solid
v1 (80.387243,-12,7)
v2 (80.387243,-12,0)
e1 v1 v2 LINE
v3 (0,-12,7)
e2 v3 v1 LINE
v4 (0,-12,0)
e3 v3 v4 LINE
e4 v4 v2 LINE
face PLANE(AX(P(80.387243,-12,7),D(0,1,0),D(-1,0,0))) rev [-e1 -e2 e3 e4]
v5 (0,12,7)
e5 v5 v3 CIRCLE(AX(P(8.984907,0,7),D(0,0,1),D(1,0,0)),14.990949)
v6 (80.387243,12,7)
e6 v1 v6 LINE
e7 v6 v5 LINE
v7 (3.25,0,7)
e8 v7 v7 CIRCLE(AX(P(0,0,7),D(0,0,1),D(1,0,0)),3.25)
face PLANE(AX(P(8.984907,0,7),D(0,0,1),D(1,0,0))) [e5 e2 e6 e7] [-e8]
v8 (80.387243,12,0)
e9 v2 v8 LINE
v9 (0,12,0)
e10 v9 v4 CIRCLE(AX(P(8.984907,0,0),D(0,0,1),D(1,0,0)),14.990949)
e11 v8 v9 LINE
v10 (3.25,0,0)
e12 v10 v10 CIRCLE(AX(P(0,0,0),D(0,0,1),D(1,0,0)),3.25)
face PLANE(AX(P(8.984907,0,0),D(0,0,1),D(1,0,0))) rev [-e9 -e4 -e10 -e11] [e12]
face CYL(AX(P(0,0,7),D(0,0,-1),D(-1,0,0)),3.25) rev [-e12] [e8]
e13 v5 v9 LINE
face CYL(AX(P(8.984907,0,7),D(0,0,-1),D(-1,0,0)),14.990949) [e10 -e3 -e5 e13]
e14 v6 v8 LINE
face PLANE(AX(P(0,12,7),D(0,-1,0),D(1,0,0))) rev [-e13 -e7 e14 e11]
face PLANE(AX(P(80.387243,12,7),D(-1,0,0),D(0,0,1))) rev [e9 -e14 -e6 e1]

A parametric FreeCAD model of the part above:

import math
import FreeCAD as App
import Part
import Sketcher

V = App.Vector
Q = App.Units.Quantity

doc = App.newDocument("Part")
body = doc.addObject("PartDesign::Body", "Body")

# Sketch on XY plane
sketch1 = body.newObject("Sketcher::SketchObject", "Sketch")
sketch1.AttachmentSupport = (doc.getObject("XY_Plane"), [""])
sketch1.MapMode = "FlatFace"
sketch1.addGeometry(Part.LineSegment(V(80.387243, 12, 0), V(0, 12, 0)), False)
sketch1.addGeometry(Part.ArcOfCircle(Part.Circle(V(8.984907, 0, 0), V(0, 0, 1), 14.990949), math.radians(126.823749), math.radians(233.176251)), False)
sketch1.addGeometry(Part.LineSegment(V(0, -12, 0), V(80.387243, -12, 0)), False)
sketch1.addGeometry(Part.LineSegment(V(80.387243, -12, 0), V(80.387243, 12, 0)), False)
sketch1.addGeometry(Part.Circle(V(0, 0, 0), V(0, 0, 1), 3.25), False)
sketch1.addConstraint(Sketcher.Constraint("Coincident", 0, 2, 1, 1))
sketch1.addConstraint(Sketcher.Constraint("Coincident", 1, 2, 2, 1))
sketch1.addConstraint(Sketcher.Constraint("Coincident", 2, 2, 3, 1))
sketch1.addConstraint(Sketcher.Constraint("Coincident", 3, 2, 0, 1))
sketch1.addConstraint(Sketcher.Constraint("Horizontal", 0))
sketch1.addConstraint(Sketcher.Constraint("Horizontal", 2))
sketch1.addConstraint(Sketcher.Constraint("Vertical", 3))
sketch1.addConstraint(Sketcher.Constraint("Coincident", 4, 3, -1, 1))
sketch1.addConstraint(Sketcher.Constraint("Symmetric", 0, 2, 1, 2, -1, 1))
sketch1.addConstraint(Sketcher.Constraint("PointOnObject", 1, 3, -1))
sketch1.addConstraint(Sketcher.Constraint("Diameter", 4, Q("6.5 mm")))
sketch1.addConstraint(Sketcher.Constraint("DistanceY", 3, 1, 3, 2, Q("24 mm")))
sketch1.addConstraint(Sketcher.Constraint("Radius", 1, Q("14.990949 mm")))
sketch1.addConstraint(Sketcher.Constraint("DistanceX", 0, 2, 0, 1, Q("80.387243 mm")))
pad1 = body.newObject("PartDesign::Pad", "Pad")
pad1.Profile = sketch1
pad1.Length = 7

doc.recompute()
